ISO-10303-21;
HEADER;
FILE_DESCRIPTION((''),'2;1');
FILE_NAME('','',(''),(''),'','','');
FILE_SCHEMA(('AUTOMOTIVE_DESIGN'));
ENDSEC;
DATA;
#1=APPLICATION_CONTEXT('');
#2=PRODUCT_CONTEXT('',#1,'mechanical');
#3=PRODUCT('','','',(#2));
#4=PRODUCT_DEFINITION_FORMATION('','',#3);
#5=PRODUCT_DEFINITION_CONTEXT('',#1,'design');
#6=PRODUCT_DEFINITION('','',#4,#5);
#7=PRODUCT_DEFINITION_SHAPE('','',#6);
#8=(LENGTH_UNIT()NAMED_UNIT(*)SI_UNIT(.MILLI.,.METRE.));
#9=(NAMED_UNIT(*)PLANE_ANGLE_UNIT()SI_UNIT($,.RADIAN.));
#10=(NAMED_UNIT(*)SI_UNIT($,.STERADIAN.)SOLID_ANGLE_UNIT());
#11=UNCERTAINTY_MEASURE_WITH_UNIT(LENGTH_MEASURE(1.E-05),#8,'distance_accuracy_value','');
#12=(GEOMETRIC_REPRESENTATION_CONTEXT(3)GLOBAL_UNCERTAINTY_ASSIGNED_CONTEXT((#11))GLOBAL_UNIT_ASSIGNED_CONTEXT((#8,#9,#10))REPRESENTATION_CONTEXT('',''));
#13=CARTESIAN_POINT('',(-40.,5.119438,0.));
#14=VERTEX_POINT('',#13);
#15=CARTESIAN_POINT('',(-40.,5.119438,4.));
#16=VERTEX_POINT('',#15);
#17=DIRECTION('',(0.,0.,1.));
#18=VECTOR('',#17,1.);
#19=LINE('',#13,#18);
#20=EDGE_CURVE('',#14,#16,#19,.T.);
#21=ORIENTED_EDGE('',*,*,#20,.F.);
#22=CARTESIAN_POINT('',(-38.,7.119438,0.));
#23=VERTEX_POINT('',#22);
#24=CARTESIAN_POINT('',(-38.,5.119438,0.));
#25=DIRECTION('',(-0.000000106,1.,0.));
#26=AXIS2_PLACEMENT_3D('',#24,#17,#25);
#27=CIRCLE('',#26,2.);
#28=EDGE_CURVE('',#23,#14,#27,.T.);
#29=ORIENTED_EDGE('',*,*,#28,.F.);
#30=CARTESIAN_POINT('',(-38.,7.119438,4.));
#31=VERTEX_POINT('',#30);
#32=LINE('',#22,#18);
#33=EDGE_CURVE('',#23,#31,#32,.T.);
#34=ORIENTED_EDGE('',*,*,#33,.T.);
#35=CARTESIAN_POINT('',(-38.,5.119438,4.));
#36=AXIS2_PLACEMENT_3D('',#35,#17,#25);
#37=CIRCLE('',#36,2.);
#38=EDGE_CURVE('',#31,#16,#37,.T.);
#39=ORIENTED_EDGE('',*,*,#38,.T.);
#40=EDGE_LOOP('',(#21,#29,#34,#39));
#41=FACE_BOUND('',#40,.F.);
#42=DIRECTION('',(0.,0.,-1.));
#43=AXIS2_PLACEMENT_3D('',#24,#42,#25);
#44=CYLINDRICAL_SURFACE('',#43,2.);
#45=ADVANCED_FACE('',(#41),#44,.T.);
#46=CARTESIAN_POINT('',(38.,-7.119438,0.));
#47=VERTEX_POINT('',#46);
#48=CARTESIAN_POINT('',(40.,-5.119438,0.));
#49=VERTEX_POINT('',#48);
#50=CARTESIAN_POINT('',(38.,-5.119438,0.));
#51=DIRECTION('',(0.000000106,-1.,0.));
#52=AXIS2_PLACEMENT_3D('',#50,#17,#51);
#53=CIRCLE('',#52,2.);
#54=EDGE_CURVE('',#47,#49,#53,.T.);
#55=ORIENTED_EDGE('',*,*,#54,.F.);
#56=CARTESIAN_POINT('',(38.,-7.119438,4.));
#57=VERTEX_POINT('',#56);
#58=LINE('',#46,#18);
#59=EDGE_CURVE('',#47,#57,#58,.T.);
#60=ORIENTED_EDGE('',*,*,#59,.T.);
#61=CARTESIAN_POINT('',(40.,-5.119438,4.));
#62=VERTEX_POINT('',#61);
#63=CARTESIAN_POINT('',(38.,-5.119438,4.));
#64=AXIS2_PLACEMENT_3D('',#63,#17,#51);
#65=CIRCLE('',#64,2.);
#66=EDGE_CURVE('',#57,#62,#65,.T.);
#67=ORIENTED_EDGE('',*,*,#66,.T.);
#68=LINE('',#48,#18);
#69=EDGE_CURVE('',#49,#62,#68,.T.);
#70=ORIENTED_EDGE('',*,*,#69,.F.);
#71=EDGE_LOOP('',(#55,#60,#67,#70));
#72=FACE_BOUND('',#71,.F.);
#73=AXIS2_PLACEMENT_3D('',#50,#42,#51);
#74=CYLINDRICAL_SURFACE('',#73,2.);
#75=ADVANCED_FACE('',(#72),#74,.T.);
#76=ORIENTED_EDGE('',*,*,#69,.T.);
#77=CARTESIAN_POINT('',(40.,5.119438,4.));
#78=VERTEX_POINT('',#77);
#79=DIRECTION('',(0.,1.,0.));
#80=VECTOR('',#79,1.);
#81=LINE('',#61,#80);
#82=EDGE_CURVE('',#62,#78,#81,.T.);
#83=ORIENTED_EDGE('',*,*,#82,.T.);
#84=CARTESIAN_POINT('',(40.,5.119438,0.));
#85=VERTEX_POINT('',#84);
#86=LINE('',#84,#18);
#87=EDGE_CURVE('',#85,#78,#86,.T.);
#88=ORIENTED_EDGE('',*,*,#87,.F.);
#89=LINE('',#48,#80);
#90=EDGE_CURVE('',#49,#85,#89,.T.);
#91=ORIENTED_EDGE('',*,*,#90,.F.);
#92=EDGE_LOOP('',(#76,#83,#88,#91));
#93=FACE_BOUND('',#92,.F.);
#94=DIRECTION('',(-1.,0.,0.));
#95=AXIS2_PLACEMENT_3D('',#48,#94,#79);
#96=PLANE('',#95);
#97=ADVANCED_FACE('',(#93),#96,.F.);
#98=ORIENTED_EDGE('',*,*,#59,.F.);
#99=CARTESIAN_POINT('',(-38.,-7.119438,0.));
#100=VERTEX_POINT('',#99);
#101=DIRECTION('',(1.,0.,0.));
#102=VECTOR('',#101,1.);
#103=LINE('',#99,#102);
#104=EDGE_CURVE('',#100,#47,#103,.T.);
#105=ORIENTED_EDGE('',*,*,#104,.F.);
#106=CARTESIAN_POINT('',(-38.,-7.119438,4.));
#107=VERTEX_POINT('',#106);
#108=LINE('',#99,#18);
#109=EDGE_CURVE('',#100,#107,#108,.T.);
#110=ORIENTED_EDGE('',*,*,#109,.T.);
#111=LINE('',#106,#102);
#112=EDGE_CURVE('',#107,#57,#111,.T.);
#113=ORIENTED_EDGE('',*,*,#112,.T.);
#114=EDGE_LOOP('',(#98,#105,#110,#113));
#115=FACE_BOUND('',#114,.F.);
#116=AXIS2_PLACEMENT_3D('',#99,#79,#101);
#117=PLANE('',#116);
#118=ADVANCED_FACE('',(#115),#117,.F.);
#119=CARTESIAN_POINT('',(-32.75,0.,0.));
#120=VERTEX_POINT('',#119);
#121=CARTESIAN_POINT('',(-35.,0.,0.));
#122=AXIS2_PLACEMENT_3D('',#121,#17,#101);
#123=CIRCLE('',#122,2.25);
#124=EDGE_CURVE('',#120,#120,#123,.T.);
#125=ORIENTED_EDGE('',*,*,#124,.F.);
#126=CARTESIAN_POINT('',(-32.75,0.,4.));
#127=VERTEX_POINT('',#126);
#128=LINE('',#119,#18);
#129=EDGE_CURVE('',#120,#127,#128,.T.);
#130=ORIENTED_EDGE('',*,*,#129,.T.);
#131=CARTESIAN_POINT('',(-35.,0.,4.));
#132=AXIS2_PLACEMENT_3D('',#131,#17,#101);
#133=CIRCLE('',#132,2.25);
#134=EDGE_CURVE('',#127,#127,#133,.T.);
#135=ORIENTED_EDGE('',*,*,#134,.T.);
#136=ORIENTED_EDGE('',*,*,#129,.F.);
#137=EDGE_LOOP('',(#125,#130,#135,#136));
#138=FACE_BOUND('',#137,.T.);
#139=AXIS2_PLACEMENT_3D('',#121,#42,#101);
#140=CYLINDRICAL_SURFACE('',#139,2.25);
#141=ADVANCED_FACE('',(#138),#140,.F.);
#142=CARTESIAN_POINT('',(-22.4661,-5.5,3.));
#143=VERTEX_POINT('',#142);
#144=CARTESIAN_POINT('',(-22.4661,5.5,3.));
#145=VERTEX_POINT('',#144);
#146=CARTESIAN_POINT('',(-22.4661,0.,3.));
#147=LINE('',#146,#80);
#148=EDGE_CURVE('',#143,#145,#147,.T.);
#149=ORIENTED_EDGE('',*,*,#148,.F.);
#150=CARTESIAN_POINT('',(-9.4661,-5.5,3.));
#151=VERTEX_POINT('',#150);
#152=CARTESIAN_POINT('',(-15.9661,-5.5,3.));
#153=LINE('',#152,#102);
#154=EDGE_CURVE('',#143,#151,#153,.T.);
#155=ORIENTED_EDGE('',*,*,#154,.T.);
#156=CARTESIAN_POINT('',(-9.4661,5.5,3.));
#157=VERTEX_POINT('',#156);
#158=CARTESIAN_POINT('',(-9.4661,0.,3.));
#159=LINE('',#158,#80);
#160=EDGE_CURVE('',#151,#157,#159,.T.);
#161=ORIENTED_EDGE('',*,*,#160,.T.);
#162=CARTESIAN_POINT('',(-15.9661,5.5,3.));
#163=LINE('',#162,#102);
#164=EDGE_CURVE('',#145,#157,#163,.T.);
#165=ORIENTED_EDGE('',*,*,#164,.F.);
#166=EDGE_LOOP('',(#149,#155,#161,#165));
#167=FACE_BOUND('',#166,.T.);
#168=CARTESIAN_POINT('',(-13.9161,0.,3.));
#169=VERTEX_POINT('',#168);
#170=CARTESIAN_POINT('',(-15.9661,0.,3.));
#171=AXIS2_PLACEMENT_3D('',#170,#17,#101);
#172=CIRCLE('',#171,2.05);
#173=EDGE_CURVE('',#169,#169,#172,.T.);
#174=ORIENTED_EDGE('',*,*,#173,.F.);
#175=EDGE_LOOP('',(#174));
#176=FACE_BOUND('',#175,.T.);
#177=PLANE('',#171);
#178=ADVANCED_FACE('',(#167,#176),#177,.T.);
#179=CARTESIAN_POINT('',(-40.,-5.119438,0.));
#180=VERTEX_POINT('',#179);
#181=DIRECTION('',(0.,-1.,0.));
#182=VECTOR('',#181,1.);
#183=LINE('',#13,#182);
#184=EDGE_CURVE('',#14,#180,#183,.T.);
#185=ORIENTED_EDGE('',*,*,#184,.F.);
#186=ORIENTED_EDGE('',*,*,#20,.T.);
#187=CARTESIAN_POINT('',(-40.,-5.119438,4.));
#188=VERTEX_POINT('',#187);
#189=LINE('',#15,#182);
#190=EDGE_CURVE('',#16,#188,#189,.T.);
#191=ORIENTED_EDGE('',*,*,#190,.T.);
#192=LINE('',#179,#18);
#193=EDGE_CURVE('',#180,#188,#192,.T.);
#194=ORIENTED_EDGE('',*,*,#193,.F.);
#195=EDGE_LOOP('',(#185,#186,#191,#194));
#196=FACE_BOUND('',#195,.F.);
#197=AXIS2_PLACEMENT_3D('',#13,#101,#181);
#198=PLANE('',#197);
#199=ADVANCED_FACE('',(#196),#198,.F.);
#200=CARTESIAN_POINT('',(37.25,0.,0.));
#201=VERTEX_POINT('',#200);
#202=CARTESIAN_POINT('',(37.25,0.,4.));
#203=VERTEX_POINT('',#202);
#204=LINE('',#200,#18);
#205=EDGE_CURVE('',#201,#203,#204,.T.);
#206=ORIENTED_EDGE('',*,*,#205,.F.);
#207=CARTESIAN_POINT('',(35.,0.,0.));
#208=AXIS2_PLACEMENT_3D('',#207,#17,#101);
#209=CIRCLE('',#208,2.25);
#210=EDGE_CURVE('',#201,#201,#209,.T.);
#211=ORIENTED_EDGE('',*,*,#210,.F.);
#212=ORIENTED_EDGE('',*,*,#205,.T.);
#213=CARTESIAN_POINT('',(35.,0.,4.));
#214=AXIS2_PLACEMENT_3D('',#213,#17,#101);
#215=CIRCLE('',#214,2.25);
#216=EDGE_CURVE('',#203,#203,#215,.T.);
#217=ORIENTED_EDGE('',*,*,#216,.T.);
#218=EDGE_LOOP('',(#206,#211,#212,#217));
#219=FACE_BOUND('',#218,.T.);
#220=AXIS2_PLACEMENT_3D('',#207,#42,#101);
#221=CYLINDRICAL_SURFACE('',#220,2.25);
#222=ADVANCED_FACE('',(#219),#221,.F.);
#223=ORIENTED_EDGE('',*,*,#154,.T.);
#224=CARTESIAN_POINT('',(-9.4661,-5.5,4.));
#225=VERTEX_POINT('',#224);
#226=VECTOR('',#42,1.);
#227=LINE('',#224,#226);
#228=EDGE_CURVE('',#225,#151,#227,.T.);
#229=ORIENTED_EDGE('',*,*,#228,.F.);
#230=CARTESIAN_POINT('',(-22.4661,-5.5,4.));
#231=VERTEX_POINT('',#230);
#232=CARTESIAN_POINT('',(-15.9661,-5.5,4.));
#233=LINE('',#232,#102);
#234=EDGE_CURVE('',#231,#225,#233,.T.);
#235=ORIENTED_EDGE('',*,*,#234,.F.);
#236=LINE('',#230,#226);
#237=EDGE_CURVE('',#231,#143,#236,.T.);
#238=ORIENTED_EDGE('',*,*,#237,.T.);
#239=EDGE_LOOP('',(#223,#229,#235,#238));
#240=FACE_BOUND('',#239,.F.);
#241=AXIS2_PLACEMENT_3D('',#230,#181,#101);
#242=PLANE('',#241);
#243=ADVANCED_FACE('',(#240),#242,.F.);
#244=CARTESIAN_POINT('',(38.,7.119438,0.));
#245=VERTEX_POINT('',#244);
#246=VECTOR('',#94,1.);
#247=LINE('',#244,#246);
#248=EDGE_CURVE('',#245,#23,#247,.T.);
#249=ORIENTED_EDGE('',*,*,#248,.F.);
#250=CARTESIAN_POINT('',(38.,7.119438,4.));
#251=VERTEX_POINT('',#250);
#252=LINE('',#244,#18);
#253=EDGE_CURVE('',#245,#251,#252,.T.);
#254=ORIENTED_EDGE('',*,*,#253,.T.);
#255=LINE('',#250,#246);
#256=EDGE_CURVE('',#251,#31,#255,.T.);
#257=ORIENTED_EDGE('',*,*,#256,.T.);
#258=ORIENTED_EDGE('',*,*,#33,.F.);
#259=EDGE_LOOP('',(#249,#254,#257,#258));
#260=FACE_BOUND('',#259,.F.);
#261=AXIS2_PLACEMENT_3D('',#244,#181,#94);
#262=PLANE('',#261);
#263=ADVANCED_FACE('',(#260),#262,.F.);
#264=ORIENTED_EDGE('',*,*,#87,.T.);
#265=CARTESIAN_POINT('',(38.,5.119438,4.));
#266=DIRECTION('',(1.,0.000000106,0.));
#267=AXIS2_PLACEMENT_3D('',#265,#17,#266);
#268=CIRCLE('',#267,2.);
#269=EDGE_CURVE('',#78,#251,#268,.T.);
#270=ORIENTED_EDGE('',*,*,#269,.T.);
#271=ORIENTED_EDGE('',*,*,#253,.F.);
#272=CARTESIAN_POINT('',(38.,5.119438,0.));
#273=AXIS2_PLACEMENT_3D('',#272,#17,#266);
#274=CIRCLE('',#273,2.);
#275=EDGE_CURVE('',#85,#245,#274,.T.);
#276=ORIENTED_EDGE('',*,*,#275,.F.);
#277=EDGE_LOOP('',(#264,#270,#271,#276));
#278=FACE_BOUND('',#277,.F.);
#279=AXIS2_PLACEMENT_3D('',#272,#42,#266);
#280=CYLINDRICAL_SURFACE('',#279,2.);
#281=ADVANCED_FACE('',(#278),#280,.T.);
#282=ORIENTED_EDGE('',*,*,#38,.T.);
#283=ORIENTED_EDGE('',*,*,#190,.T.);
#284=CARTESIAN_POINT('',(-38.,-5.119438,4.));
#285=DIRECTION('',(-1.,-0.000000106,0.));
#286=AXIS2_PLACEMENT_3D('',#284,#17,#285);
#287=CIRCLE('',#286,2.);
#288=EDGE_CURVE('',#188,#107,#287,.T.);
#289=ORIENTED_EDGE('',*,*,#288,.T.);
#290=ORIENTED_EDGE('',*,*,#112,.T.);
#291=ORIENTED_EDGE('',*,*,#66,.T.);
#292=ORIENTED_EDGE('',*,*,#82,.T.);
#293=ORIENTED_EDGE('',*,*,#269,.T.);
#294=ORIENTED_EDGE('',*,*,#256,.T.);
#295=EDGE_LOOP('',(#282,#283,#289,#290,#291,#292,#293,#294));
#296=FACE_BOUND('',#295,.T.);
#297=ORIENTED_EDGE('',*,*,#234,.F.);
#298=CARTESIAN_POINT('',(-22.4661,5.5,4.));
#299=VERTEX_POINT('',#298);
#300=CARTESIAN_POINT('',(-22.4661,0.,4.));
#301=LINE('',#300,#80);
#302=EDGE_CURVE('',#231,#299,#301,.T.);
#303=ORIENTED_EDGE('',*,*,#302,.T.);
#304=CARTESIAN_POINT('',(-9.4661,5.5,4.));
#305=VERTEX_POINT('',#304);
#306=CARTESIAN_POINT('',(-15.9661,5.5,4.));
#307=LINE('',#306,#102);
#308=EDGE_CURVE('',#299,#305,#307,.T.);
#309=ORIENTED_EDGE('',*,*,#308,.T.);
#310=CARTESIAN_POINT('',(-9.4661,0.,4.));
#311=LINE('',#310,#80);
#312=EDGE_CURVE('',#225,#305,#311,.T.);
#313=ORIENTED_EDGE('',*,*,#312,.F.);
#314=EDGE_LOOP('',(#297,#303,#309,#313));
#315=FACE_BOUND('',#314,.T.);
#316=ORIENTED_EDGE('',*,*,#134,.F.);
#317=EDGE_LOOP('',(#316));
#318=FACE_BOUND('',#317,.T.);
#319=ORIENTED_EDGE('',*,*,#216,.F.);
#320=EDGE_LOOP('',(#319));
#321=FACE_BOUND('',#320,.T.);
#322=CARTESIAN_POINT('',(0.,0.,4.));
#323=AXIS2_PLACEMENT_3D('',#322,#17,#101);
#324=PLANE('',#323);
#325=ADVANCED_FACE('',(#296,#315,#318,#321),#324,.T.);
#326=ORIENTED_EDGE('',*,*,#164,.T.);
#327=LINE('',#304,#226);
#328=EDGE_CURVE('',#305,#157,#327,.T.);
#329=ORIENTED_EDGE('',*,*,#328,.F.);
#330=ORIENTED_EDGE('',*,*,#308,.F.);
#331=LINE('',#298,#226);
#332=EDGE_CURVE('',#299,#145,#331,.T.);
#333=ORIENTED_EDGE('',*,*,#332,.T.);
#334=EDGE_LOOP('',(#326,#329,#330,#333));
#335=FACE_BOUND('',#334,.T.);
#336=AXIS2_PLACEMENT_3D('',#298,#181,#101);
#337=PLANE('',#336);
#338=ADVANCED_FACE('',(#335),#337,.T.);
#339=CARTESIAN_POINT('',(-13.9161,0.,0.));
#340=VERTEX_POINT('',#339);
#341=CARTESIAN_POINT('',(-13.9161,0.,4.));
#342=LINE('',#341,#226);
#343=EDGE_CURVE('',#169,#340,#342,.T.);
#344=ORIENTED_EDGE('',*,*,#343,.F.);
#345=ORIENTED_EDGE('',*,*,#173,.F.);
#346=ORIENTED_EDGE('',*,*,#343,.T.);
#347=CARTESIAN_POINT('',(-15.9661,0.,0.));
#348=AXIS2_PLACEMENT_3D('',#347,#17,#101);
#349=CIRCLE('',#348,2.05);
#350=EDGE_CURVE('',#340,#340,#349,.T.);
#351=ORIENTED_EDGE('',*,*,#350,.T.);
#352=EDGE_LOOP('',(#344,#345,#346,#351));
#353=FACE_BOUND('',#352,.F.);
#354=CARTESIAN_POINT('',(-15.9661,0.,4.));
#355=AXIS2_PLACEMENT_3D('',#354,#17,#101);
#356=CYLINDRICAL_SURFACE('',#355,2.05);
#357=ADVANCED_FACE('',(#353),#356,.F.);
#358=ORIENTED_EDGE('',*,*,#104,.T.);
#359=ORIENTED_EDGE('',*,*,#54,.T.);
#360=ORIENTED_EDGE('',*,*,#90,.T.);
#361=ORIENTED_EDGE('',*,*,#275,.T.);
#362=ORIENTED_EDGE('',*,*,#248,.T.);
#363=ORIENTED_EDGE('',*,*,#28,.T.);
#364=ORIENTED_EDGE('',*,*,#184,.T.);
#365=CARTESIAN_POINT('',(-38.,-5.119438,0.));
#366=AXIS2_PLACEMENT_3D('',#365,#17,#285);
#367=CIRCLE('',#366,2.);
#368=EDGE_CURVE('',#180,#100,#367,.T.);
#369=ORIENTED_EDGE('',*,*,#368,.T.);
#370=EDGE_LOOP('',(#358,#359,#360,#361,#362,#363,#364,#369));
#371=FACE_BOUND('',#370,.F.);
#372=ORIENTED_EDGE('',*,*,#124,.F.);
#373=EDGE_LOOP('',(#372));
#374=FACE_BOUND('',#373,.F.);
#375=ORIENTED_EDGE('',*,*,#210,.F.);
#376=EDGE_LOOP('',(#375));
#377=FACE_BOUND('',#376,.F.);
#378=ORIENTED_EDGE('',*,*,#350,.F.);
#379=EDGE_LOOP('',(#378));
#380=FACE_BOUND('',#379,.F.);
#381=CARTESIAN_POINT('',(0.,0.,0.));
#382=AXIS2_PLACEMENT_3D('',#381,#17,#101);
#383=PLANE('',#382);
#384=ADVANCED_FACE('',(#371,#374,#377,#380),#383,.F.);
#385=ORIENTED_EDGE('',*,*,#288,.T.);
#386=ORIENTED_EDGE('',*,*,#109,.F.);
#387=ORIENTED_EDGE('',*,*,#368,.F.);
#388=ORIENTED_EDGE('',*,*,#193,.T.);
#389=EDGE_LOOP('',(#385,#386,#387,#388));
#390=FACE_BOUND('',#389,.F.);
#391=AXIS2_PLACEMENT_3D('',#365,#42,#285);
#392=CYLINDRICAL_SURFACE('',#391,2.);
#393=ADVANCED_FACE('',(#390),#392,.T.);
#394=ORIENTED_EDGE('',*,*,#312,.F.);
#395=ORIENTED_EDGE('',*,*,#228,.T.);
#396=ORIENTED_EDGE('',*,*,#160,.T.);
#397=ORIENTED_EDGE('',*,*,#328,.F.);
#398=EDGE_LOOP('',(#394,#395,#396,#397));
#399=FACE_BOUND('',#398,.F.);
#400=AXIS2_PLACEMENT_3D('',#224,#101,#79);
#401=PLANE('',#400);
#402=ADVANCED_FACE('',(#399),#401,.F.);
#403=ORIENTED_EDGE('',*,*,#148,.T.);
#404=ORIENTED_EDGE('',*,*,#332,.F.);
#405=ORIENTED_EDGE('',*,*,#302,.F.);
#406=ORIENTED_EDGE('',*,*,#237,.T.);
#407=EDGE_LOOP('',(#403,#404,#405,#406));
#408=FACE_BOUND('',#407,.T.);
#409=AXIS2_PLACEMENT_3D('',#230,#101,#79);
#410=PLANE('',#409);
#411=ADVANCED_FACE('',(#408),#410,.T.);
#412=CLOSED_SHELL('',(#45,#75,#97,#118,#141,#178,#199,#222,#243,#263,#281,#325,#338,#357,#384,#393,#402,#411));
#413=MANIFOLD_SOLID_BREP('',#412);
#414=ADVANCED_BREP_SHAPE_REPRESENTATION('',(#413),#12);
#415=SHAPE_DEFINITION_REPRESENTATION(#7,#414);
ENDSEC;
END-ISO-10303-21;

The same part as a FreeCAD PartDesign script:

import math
import FreeCAD as App
import Part
import Sketcher

V = App.Vector

doc = App.newDocument("Part")
body = doc.addObject("PartDesign::Body", "Body")

# Sketch on XY plane
sketch1 = doc.addObject("Sketcher::SketchObject", "Sketch")
body.addObject(sketch1)
sketch1.AttachmentSupport = (doc.XY_Plane, [""])
sketch1.MapMode = "FlatFace"
sketch1.addGeometry(Part.ArcOfCircle(Part.Circle(V(38, 5.1, 0), V(0, 0, 1), 2), math.radians(0), math.radians(90)), False)
sketch1.addGeometry(Part.LineSegment(V(38, 7.1, 0), V(-38, 7.1, 0)), False)
sketch1.addGeometry(Part.ArcOfCircle(Part.Circle(V(-38, 5.1, 0), V(0, 0, 1), 2), math.radians(90), math.radians(180)), False)
sketch1.addGeometry(Part.LineSegment(V(-40, 5.1, 0), V(-40, -5.1, 0)), False)
sketch1.addGeometry(Part.ArcOfCircle(Part.Circle(V(-38, -5.1, 0), V(0, 0, 1), 2), math.radians(-180), math.radians(-90)), False)
sketch1.addGeometry(Part.LineSegment(V(-38, -7.1, 0), V(38, -7.1, 0)), False)
sketch1.addGeometry(Part.ArcOfCircle(Part.Circle(V(38, -5.1, 0), V(0, 0, 1), 2), math.radians(-90), math.radians(0)), False)
sketch1.addGeometry(Part.LineSegment(V(40, -5.1, 0), V(40, 5.1, 0)), False)
sketch1.addGeometry(Part.Circle(V(-35, 0, 0), V(0, 0, 1), 2.2), False)
sketch1.addGeometry(Part.Circle(V(35, 0, 0), V(0, 0, 1), 2.2), False)
sketch1.addConstraint(Sketcher.Constraint("Tangent", 0, 2, 1, 1))
sketch1.addConstraint(Sketcher.Constraint("Tangent", 1, 2, 2, 1))
sketch1.addConstraint(Sketcher.Constraint("Tangent", 2, 2, 3, 1))
sketch1.addConstraint(Sketcher.Constraint("Tangent", 3, 2, 4, 1))
sketch1.addConstraint(Sketcher.Constraint("Tangent", 4, 2, 5, 1))
sketch1.addConstraint(Sketcher.Constraint("Tangent", 5, 2, 6, 1))
sketch1.addConstraint(Sketcher.Constraint("Tangent", 6, 2, 7, 1))
sketch1.addConstraint(Sketcher.Constraint("Tangent", 7, 2, 0, 1))
sketch1.addConstraint(Sketcher.Constraint("Horizontal", 1))
sketch1.addConstraint(Sketcher.Constraint("Vertical", 3))
sketch1.addConstraint(Sketcher.Constraint("Horizontal", 5))
sketch1.addConstraint(Sketcher.Constraint("Vertical", 7))
sketch1.addConstraint(Sketcher.Constraint("Equal", 0, 2))
sketch1.addConstraint(Sketcher.Constraint("Equal", 2, 4))
sketch1.addConstraint(Sketcher.Constraint("Equal", 4, 6))
sketch1.addConstraint(Sketcher.Constraint("Equal", 8, 9))
sketch1.addConstraint(Sketcher.Constraint("Symmetric", 0, 3, 4, 3, -1, 1))
sketch1.addConstraint(Sketcher.Constraint("Symmetric", 8, 3, 9, 3, -1, 1))
sketch1.addConstraint(Sketcher.Constraint("PointOnObject", 8, 3, -1))
sketch1.addConstraint(Sketcher.Constraint("Radius", 0, 2.0))
sketch1.addConstraint(Sketcher.Constraint("Diameter", 8, 4.5))
sketch1.addConstraint(Sketcher.Constraint("DistanceX", 1, 2, 1, 1, 76.0))
sketch1.addConstraint(Sketcher.Constraint("DistanceX", 8, 3, -1, 1, 35.0))
sketch1.addConstraint(Sketcher.Constraint("DistanceY", 3, 2, 3, 1, 10.238876))
pad1 = doc.addObject("PartDesign::Pad", "Pad")
body.addObject(pad1)
pad1.Profile = sketch1
pad1.Length = 4

# Sketch on XY plane
sketch2 = doc.addObject("Sketcher::SketchObject", "Sketch001")
body.addObject(sketch2)
sketch2.AttachmentSupport = (doc.XY_Plane, [""])
sketch2.MapMode = "FlatFace"
sketch2.AttachmentOffset = App.Placement(V(0, 0, 4), App.Rotation())
sketch2.addGeometry(Part.Circle(V(-16, 0, 0), V(0, 0, 1), 2), False)
sketch2.addConstraint(Sketcher.Constraint("PointOnObject", 0, 3, -1))
sketch2.addConstraint(Sketcher.Constraint("Diameter", 0, 4.1))
sketch2.addConstraint(Sketcher.Constraint("DistanceX", 0, 3, -1, 1, 15.9661))
pocket1 = doc.addObject("PartDesign::Pocket", "Pocket")
body.addObject(pocket1)
pocket1.Profile = sketch2
pocket1.Length = 5

# Sketch on XY plane
sketch3 = doc.addObject("Sketcher::SketchObject", "Sketch002")
body.addObject(sketch3)
sketch3.AttachmentSupport = (doc.XY_Plane, [""])
sketch3.MapMode = "FlatFace"
sketch3.AttachmentOffset = App.Placement(V(0, 0, 4), App.Rotation())
sketch3.addGeometry(Part.LineSegment(V(-22, 6, 0), V(-22, -6, 0)), False)
sketch3.addGeometry(Part.LineSegment(V(-22, -6, 0), V(-9, -6, 0)), False)
sketch3.addGeometry(Part.LineSegment(V(-9, -6, 0), V(-9, 6, 0)), False)
sketch3.addGeometry(Part.LineSegment(V(-9, 6, 0), V(-22, 6, 0)), False)
sketch3.addConstraint(Sketcher.Constraint("Coincident", 0, 2, 1, 1))
sketch3.addConstraint(Sketcher.Constraint("Coincident", 1, 2, 2, 1))
sketch3.addConstraint(Sketcher.Constraint("Coincident", 2, 2, 3, 1))
sketch3.addConstraint(Sketcher.Constraint("Coincident", 3, 2, 0, 1))
sketch3.addConstraint(Sketcher.Constraint("Vertical", 0))
sketch3.addConstraint(Sketcher.Constraint("Horizontal", 1))
sketch3.addConstraint(Sketcher.Constraint("Vertical", 2))
sketch3.addConstraint(Sketcher.Constraint("Horizontal", 3))
sketch3.addConstraint(Sketcher.Constraint("DistanceX", 1, 1, 1, 2, 13.0))
sketch3.addConstraint(Sketcher.Constraint("DistanceY", 0, 2, 0, 1, 11.0))
sketch3.addConstraint(Sketcher.Constraint("DistanceY", 0, 2, -1, 1, 5.5))
sketch3.addConstraint(Sketcher.Constraint("DistanceX", 0, 2, -1, 1, 22.4661))
pocket2 = doc.addObject("PartDesign::Pocket", "Pocket001")
body.addObject(pocket2)
pocket2.Profile = sketch3
pocket2.Length = 1

doc.recompute()
